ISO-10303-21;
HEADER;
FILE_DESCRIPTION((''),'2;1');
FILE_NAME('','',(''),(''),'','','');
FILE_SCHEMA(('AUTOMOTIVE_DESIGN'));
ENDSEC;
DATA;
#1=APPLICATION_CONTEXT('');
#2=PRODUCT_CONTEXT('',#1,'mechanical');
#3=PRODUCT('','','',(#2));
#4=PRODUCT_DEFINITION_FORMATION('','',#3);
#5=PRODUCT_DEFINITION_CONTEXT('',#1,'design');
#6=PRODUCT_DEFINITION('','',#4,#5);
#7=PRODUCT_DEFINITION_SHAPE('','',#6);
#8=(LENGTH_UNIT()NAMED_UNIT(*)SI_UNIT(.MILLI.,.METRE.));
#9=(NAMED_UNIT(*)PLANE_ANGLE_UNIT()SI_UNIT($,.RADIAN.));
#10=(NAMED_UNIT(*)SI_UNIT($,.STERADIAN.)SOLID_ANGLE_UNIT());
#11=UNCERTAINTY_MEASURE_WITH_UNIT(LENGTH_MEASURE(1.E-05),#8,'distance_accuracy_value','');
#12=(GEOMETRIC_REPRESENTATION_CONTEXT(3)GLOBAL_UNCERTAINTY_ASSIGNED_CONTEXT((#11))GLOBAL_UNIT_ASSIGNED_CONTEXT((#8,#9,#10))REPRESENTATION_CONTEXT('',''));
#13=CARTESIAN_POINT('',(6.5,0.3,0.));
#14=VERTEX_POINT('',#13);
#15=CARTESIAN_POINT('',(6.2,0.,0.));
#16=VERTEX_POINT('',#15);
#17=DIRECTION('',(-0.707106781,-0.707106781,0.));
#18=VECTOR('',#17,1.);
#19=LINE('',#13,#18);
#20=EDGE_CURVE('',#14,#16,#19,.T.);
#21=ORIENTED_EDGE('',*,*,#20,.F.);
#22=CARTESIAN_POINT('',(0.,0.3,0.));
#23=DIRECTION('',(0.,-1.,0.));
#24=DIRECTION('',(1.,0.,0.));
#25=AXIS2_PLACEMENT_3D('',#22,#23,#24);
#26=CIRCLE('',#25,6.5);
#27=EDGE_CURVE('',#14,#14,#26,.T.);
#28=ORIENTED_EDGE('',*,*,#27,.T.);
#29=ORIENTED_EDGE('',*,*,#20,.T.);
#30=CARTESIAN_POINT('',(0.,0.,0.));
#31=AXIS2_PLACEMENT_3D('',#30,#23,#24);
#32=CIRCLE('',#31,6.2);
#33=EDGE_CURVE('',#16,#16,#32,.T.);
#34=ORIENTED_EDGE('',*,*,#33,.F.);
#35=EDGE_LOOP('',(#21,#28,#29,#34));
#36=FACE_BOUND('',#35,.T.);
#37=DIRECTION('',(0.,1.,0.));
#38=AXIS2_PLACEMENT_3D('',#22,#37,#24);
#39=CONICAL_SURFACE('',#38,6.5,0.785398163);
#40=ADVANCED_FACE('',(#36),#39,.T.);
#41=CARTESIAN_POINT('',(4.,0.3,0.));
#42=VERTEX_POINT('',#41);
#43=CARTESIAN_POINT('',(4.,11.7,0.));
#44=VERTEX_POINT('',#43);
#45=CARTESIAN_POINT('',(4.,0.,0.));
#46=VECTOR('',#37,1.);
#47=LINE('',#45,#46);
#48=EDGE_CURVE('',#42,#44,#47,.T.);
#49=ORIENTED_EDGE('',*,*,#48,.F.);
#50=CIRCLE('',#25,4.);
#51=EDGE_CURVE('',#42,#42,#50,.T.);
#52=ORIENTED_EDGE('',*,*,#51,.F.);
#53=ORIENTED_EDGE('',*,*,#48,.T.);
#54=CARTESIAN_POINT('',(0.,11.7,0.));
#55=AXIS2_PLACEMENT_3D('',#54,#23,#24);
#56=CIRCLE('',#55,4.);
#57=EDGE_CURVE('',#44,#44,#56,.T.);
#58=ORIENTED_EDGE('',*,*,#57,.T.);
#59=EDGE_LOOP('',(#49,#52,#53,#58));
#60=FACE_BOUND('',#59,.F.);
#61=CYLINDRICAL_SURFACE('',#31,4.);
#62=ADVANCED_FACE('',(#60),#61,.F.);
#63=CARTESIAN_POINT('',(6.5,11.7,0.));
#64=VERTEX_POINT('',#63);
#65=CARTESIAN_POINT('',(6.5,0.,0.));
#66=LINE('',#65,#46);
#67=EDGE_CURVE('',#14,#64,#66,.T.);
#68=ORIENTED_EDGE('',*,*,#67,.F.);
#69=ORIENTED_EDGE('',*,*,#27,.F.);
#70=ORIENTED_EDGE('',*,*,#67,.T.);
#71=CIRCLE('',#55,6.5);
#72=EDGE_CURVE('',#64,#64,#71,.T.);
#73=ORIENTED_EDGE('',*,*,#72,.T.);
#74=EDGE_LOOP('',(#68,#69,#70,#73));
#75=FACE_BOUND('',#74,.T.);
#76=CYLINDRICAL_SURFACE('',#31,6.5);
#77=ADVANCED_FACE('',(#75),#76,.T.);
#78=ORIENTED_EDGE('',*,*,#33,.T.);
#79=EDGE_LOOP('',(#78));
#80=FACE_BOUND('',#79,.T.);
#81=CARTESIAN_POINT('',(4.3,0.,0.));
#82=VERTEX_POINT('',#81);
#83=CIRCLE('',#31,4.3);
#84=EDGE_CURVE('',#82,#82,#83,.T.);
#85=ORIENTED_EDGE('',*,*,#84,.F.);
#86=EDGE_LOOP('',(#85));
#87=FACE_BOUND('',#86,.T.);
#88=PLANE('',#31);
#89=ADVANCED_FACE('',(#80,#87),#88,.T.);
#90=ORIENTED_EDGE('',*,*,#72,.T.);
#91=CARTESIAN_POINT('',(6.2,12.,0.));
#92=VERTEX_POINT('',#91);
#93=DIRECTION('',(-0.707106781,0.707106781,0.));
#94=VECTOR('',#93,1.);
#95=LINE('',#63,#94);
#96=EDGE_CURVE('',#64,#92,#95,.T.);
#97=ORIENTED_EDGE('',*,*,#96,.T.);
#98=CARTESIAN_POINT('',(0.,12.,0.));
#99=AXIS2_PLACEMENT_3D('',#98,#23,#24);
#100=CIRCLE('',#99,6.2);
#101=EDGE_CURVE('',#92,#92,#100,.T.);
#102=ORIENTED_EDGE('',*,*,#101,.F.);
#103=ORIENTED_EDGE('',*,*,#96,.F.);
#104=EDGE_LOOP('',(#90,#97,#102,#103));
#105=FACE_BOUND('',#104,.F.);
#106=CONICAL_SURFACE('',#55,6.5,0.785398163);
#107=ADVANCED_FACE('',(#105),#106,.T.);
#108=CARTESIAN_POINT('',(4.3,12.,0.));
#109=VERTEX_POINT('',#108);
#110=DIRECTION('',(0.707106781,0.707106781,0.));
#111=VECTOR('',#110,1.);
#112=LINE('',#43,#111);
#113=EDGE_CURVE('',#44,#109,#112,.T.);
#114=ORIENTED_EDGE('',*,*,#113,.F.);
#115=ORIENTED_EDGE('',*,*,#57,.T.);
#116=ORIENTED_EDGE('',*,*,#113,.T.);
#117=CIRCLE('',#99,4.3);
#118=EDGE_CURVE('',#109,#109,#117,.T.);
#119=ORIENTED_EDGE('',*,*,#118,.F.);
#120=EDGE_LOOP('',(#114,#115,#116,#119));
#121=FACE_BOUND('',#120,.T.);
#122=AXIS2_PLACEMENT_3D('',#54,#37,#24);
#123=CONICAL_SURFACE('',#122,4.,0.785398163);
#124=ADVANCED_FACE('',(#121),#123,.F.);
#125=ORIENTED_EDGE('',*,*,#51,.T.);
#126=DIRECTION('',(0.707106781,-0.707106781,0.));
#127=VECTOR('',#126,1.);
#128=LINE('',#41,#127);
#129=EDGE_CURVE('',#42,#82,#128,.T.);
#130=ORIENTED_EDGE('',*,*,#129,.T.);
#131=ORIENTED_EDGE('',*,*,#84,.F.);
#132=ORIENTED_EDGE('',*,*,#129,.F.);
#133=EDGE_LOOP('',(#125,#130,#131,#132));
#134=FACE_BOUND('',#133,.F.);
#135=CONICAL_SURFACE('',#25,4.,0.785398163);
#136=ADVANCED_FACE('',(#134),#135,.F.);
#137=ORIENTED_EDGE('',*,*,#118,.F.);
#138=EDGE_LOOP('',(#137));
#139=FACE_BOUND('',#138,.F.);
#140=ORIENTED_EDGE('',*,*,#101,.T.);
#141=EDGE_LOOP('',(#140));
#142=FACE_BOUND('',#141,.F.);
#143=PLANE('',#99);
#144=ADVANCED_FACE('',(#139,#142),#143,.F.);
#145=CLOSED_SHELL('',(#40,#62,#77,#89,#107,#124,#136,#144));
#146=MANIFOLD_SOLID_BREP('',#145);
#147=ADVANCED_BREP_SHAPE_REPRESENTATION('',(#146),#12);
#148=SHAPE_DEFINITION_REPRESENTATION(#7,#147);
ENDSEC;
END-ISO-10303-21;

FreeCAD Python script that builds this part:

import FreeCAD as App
import Part
import Sketcher

V = App.Vector


def edges_at(feature, points):
    """Names of the edges that pass closest to the given points."""
    edges = feature.Shape.Edges
    near = lambda p: min(range(len(edges)), key=lambda i: edges[i].distToShape(Part.Vertex(*p))[0])
    return sorted({f"Edge{near(p) + 1}" for p in points})

doc = App.newDocument("Part")
body = doc.addObject("PartDesign::Body", "Body")

# Sketch on XZ plane
sketch1 = body.newObject("Sketcher::SketchObject", "Sketch")
sketch1.AttachmentSupport = (doc.getObject("XZ_Plane"), [""])
sketch1.MapMode = "FlatFace"
sketch1.addGeometry([
    Part.Circle(V(0, 0, 0), V(0, 0, 1), 6.5),
    Part.Circle(V(0, 0, 0), V(0, 0, 1), 4),
], False)
sketch1.addConstraint([
    Sketcher.Constraint("Coincident", 0, 3, -1, 1),
    Sketcher.Constraint("Coincident", 1, 3, -1, 1),
    Sketcher.Constraint("Diameter", 0, 13.0),
    Sketcher.Constraint("Diameter", 1, 8.0),
])
pad1 = body.newObject("PartDesign::Pad", "Pad")
pad1.Profile = sketch1
pad1.Length = 12
pad1.Reversed = True
doc.recompute()

chamfer = body.newObject("PartDesign::Chamfer", "Chamfer")
chamfer.Base = (pad1, edges_at(pad1, [
    (-6.5, 0, 0),
    (-6.5, 12, 0),
    (-4, 0, 0),
    (-4, 12, 0),
]))
chamfer.Size = 0.3

doc.recompute()
